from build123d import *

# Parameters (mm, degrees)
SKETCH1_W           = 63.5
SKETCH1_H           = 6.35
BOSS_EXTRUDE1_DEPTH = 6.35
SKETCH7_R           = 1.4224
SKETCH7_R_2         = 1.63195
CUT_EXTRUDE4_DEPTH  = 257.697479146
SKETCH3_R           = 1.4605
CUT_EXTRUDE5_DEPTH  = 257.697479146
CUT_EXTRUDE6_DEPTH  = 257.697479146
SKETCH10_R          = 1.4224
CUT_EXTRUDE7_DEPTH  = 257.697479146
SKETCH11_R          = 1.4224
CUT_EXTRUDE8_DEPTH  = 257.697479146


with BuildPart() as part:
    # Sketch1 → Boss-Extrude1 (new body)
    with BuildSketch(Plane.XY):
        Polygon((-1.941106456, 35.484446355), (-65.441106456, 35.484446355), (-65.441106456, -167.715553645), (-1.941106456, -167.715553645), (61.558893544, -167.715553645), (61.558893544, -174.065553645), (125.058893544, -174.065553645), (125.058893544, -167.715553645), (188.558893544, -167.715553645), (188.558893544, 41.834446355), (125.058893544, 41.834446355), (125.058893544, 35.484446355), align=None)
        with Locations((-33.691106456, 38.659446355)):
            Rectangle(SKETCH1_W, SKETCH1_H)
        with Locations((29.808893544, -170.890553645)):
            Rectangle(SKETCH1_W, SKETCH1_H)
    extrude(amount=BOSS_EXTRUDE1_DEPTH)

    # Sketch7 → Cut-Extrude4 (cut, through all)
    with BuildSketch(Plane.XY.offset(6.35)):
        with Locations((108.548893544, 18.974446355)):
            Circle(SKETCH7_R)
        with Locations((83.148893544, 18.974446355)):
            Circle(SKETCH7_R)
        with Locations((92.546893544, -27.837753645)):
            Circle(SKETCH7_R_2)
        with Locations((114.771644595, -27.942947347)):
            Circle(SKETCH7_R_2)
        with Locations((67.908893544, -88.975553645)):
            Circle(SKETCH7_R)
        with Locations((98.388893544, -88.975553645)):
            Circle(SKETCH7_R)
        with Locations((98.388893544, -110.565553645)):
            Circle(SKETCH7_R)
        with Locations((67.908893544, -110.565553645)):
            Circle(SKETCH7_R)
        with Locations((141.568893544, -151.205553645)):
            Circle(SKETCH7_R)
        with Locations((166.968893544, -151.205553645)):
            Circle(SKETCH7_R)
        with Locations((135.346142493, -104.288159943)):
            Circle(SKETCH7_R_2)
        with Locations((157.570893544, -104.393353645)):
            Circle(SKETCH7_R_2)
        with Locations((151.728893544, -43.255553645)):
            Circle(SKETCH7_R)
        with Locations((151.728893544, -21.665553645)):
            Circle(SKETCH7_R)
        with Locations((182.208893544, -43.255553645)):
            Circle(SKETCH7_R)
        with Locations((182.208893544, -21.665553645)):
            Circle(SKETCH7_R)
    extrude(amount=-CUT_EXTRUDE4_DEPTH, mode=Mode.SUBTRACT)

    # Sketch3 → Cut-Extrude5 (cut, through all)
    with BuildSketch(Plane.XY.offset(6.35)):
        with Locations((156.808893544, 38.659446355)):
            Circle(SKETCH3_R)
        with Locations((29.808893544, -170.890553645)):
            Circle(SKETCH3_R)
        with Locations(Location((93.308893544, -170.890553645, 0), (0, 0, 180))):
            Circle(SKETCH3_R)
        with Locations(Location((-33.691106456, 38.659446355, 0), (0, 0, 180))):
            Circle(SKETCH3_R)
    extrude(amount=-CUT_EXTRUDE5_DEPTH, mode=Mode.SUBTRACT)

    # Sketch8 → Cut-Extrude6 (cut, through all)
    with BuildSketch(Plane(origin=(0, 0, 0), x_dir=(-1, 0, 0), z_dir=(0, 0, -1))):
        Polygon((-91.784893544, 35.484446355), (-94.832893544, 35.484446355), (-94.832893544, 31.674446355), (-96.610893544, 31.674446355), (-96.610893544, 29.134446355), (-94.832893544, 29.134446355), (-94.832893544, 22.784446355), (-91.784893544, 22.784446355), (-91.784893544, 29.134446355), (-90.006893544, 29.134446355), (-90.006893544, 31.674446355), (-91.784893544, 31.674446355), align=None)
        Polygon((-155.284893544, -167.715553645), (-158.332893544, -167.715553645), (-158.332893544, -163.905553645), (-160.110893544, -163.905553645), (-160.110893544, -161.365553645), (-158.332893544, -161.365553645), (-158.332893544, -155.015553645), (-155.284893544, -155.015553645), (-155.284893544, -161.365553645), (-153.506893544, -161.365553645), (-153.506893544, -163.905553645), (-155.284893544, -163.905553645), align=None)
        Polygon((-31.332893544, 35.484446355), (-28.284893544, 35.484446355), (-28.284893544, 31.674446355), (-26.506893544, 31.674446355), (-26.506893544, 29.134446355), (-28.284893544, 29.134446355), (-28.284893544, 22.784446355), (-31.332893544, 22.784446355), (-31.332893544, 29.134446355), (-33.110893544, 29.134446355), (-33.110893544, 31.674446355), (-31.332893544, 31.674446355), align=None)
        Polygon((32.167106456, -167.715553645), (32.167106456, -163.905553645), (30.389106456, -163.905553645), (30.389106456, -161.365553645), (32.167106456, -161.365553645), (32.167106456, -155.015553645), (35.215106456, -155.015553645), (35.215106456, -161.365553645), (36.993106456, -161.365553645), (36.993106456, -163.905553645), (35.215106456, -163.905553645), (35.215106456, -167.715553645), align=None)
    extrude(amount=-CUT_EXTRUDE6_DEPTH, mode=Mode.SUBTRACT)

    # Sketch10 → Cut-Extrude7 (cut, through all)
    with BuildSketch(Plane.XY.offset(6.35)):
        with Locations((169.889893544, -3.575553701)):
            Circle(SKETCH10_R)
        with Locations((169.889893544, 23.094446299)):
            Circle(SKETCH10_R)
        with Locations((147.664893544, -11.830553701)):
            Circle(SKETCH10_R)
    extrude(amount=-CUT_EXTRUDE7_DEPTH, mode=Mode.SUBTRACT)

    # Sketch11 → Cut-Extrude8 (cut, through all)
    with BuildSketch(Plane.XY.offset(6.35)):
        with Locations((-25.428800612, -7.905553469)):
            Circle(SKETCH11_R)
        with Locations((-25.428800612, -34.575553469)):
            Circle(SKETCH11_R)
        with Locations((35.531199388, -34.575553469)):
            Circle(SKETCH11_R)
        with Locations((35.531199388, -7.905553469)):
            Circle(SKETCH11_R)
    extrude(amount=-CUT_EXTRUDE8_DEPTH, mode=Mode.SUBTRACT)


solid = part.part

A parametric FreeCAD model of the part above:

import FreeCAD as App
import Part
import Sketcher
Q = App.Units.Quantity


def add_polygon(sketch, points):
    """Adds a closed chain of lines whose ends are joined by coincident constraints."""
    first, n = sketch.GeometryCount, len(points)
    for a, b in zip(points, points[1:] + points[:1]):
        sketch.addGeometry(Part.LineSegment(App.Vector(*a, 0), App.Vector(*b, 0)), False)
    for i in range(n):
        sketch.addConstraint(Sketcher.Constraint("Coincident", first + i, 2, first + (i + 1) % n, 1))

doc = App.newDocument("Part")
params = doc.addObject("Spreadsheet::Sheet", "Params")
for row, (alias, value) in enumerate([
    ("sketch1_width", "5 in"),
    ("sketch1_width2", "2.5 in"),
    ("sketch1_height", "0.25 in"),
    ("pad1_length", "0.25 in"),
    ("sketch2_diameter", "0.112 in"),
    ("sketch3_diameter", "0.115 in"),
    ("sketch4_height", "0.1 in"),
    ("sketch4_width", "0.12 in"),
    ("sketch4_width2", "0.07 in"),
    ("sketch4_height2", "0.15 in"),
    ("sketch4_height3", "0.25 in"),
    ("sketch5_diameter", "0.112 in"),
    ("sketch6_diameter", "0.112 in"),
], start=1):
    params.set(f"A{row}", alias)
    params.set(f"B{row}", "=" + value)
    params.setAlias(f"B{row}", alias)

body = doc.addObject("PartDesign::Body", "Body")

# Sketch on XY plane
sketch1 = body.newObject("Sketcher::SketchObject", "Sketch")
sketch1.AttachmentSupport = (doc.getObject("XY_Plane"), [""])
sketch1.MapMode = "FlatFace"
add_polygon(sketch1, [(-65, -168), (-2, -168), (-2, -174), (125, -174), (125, -168), (189, -168), (189, 42), (125, 42), (125, 35), (-2, 35), (-2, 42), (-65, 42)])  # lines 0-11
sketch1.addConstraint([
    Sketcher.Constraint("Horizontal", 0),
    Sketcher.Constraint("Vertical", 1),
    Sketcher.Constraint("Horizontal", 2),
    Sketcher.Constraint("Vertical", 3),
    Sketcher.Constraint("Horizontal", 4),
    Sketcher.Constraint("Vertical", 5),
    Sketcher.Constraint("Horizontal", 6),
    Sketcher.Constraint("Vertical", 7),
    Sketcher.Constraint("Horizontal", 8),
    Sketcher.Constraint("Vertical", 9),
    Sketcher.Constraint("Horizontal", 10),
    Sketcher.Constraint("Vertical", 11),
    Sketcher.Constraint("Horizontal", 0, 2, 3, 2),
    Sketcher.Constraint("Horizontal", 6, 2, 9, 2),
    Sketcher.Constraint("Vertical", 3, 2, 6, 2),
    Sketcher.Constraint("Vertical", 1, 2, 8, 2),
    Sketcher.Constraint("Equal", 0, 4),
    Sketcher.Constraint("Equal", 3, 7),
    Sketcher.Constraint("DistanceX", 2, 1, 2, 2, Q("5 in")),
    Sketcher.Constraint("DistanceX", 0, 1, 0, 2, Q("2.5 in")),
    Sketcher.Constraint("DistanceY", 3, 2, 7, 2, Q("8 in")),
    Sketcher.Constraint("DistanceY", 1, 2, 1, 1, Q("0.25 in")),
    Sketcher.Constraint("DistanceX", 0, 2, -1, 1, 1.941106),
    Sketcher.Constraint("DistanceY", 0, 2, -1, 1, 167.715554),
])
sketch1.setExpression("Constraints[30]", "Params.sketch1_width")
sketch1.setExpression("Constraints[31]", "Params.sketch1_width2")
sketch1.setExpression("Constraints[33]", "Params.sketch1_height")
pad1 = body.newObject("PartDesign::Pad", "Pad")
pad1.Profile = sketch1
pad1.setExpression("Length", "Params.pad1_length")

# Sketch on XY plane
sketch2 = body.newObject("Sketcher::SketchObject", "Sketch001")
sketch2.AttachmentSupport = (doc.getObject("XY_Plane"), [""])
sketch2.MapMode = "FlatFace"
sketch2.AttachmentOffset = App.Placement(App.Vector(0, 0, 0.25 * 25.4), App.Rotation())
sketch2.addGeometry([
    Part.Circle(App.Vector(108.5, 19, 0), App.Vector(0, 0, 1), 1.4),  # 0
    Part.Circle(App.Vector(83.1, 19, 0), App.Vector(0, 0, 1), 1.4),  # 1
    Part.Circle(App.Vector(92.5, -27.8, 0), App.Vector(0, 0, 1), 1.6),  # 2
    Part.Circle(App.Vector(114.8, -27.9, 0), App.Vector(0, 0, 1), 1.6),  # 3
    Part.Circle(App.Vector(67.9, -89, 0), App.Vector(0, 0, 1), 1.4),  # 4
    Part.Circle(App.Vector(98.4, -89, 0), App.Vector(0, 0, 1), 1.4),  # 5
    Part.Circle(App.Vector(98.4, -110.6, 0), App.Vector(0, 0, 1), 1.4),  # 6
    Part.Circle(App.Vector(67.9, -110.6, 0), App.Vector(0, 0, 1), 1.4),  # 7
    Part.Circle(App.Vector(141.6, -151.2, 0), App.Vector(0, 0, 1), 1.4),  # 8
    Part.Circle(App.Vector(167, -151.2, 0), App.Vector(0, 0, 1), 1.4),  # 9
    Part.Circle(App.Vector(135.3, -104.3, 0), App.Vector(0, 0, 1), 1.6),  # 10
    Part.Circle(App.Vector(157.6, -104.4, 0), App.Vector(0, 0, 1), 1.6),  # 11
    Part.Circle(App.Vector(151.7, -43.3, 0), App.Vector(0, 0, 1), 1.4),  # 12
    Part.Circle(App.Vector(151.7, -21.7, 0), App.Vector(0, 0, 1), 1.4),  # 13
    Part.Circle(App.Vector(182.2, -43.3, 0), App.Vector(0, 0, 1), 1.4),  # 14
    Part.Circle(App.Vector(182.2, -21.7, 0), App.Vector(0, 0, 1), 1.4),  # 15
], False)
sketch2.addConstraint([
    Sketcher.Constraint("Equal", 0, 1),
    Sketcher.Constraint("Equal", 2, 3),
    Sketcher.Constraint("Equal", 1, 4),
    Sketcher.Constraint("Equal", 4, 5),
    Sketcher.Constraint("Equal", 5, 6),
    Sketcher.Constraint("Equal", 6, 7),
    Sketcher.Constraint("Equal", 7, 8),
    Sketcher.Constraint("Equal", 8, 9),
    Sketcher.Constraint("Equal", 3, 10),
    Sketcher.Constraint("Equal", 10, 11),
    Sketcher.Constraint("Equal", 9, 12),
    Sketcher.Constraint("Equal", 12, 13),
    Sketcher.Constraint("Equal", 13, 14),
    Sketcher.Constraint("Equal", 14, 15),
    Sketcher.Constraint("Horizontal", 0, 3, 1, 3),
    Sketcher.Constraint("Horizontal", 4, 3, 5, 3),
    Sketcher.Constraint("Horizontal", 6, 3, 7, 3),
    Sketcher.Constraint("Horizontal", 8, 3, 9, 3),
    Sketcher.Constraint("Horizontal", 12, 3, 14, 3),
    Sketcher.Constraint("Horizontal", 13, 3, 15, 3),
    Sketcher.Constraint("Vertical", 5, 3, 6, 3),
    Sketcher.Constraint("Vertical", 4, 3, 7, 3),
    Sketcher.Constraint("Vertical", 12, 3, 13, 3),
    Sketcher.Constraint("Vertical", 14, 3, 15, 3),
    Sketcher.Constraint("Diameter", 0, Q("0.112 in")),
    Sketcher.Constraint("DistanceX", 1, 3, 0, 3, Q("1 in")),
    Sketcher.Constraint("DistanceX", 8, 3, 9, 3, Q("1 in")),
    Sketcher.Constraint("Diameter", 2, Q("0.1285 in")),
    Sketcher.Constraint("DistanceX", 4, 3, 1, 3, Q("0.6 in")),
    Sketcher.Constraint("DistanceX", 4, 3, 5, 3, Q("1.2 in")),
    Sketcher.Constraint("DistanceY", 6, 3, 0, 3, Q("5.1 in")),
    Sketcher.Constraint("DistanceX", 6, 3, 8, 3, Q("1.7 in")),
    Sketcher.Constraint("DistanceY", 8, 3, 6, 3, Q("1.6 in")),
    Sketcher.Constraint("DistanceX", 5, 3, 12, 3, Q("2.1 in")),
    Sketcher.Constraint("DistanceY", 5, 3, 12, 3, Q("1.8 in")),
    Sketcher.Constraint("DistanceY", 13, 3, 0, 3, Q("1.6 in")),
    Sketcher.Constraint("DistanceX", 12, 3, 14, 3, Q("1.2 in")),
    Sketcher.Constraint("DistanceX", 1, 3, 2, 3, Q("0.37 in")),
    Sketcher.Constraint("DistanceY", 4, 3, 1, 3, Q("4.25 in")),
    Sketcher.Constraint("DistanceX", 11, 3, 9, 3, Q("0.37 in")),
    Sketcher.Constraint("DistanceY", 2, 3, 1, 3, Q("1.843 in")),
    Sketcher.Constraint("DistanceY", 9, 3, 11, 3, Q("1.843 in")),
    Sketcher.Constraint("DistanceY", 10, 3, -1, 1, 104.28816),
    Sketcher.Constraint("DistanceX", 2, 3, 3, 3, 22.224751),
    Sketcher.Constraint("DistanceX", 6, 3, 10, 3, 36.957249),
    Sketcher.Constraint("DistanceX", -1, 1, 0, 3, 108.548894),
    Sketcher.Constraint("DistanceY", -1, 1, 0, 3, 18.974446),
    Sketcher.Constraint("DistanceY", 3, 3, -1, 1, 27.942947),
])
sketch2.setExpression("Constraints[24]", "Params.sketch2_diameter")
pocket1 = body.newObject("PartDesign::Pocket", "Pocket")
pocket1.Profile = sketch2
pocket1.Type = "ThroughAll"

# Sketch on XY plane
sketch3 = body.newObject("Sketcher::SketchObject", "Sketch002")
sketch3.AttachmentSupport = (doc.getObject("XY_Plane"), [""])
sketch3.MapMode = "FlatFace"
sketch3.AttachmentOffset = App.Placement(App.Vector(0, 0, 0.25 * 25.4), App.Rotation())
sketch3.addGeometry([
    Part.Circle(App.Vector(156.8, 38.7, 0), App.Vector(0, 0, 1), 1.5),
    Part.Circle(App.Vector(29.8, -170.9, 0), App.Vector(0, 0, 1), 1.5),
    Part.Circle(App.Vector(93.3, -170.9, 0), App.Vector(0, 0, 1), 1.5),
    Part.Circle(App.Vector(-33.7, 38.7, 0), App.Vector(0, 0, 1), 1.5),
], False)
sketch3.addConstraint([
    Sketcher.Constraint("Equal", 0, 1),
    Sketcher.Constraint("Equal", 1, 2),
    Sketcher.Constraint("Equal", 2, 3),
    Sketcher.Constraint("Horizontal", 1, 3, 2, 3),
    Sketcher.Constraint("Horizontal", 0, 3, 3, 3),
    Sketcher.Constraint("Diameter", 0, Q("0.115 in")),
    Sketcher.Constraint("DistanceX", 1, 3, 0, 3, Q("5 in")),
    Sketcher.Constraint("DistanceX", 3, 3, 2, 3, Q("5 in")),
    Sketcher.Constraint("DistanceX", 1, 3, 2, 3, Q("2.5 in")),
    Sketcher.Constraint("DistanceY", 1, 3, 0, 3, Q("8.25 in")),
    Sketcher.Constraint("DistanceX", -1, 1, 0, 3, 156.808894),
    Sketcher.Constraint("DistanceY", -1, 1, 0, 3, 38.659446),
])
sketch3.setExpression("Constraints[5]", "Params.sketch3_diameter")
pocket2 = body.newObject("PartDesign::Pocket", "Pocket001")
pocket2.Profile = sketch3
pocket2.Type = "ThroughAll"

# Sketch on XY plane
sketch4 = body.newObject("Sketcher::SketchObject", "Sketch003")
sketch4.AttachmentSupport = (doc.getObject("XY_Plane"), [""])
sketch4.MapMode = "FlatFace"
add_polygon(sketch4, [(91.8, 35.5), (94.8, 35.5), (94.8, 31.7), (96.6, 31.7), (96.6, 29.1), (94.8, 29.1), (94.8, 22.8), (91.8, 22.8), (91.8, 29.1), (90, 29.1), (90, 31.7), (91.8, 31.7)])  # lines 0-11
add_polygon(sketch4, [(158.3, -167.7), (155.3, -167.7), (155.3, -163.9), (153.5, -163.9), (153.5, -161.4), (155.3, -161.4), (155.3, -155), (158.3, -155), (158.3, -161.4), (160.1, -161.4), (160.1, -163.9), (158.3, -163.9)])  # lines 12-23
add_polygon(sketch4, [(28.3, 35.5), (31.3, 35.5), (31.3, 31.7), (33.1, 31.7), (33.1, 29.1), (31.3, 29.1), (31.3, 22.8), (28.3, 22.8), (28.3, 29.1), (26.5, 29.1), (26.5, 31.7), (28.3, 31.7)])  # lines 24-35
add_polygon(sketch4, [(-32.2, -163.9), (-32.2, -167.7), (-35.2, -167.7), (-35.2, -163.9), (-37, -163.9), (-37, -161.4), (-35.2, -161.4), (-35.2, -155), (-32.2, -155), (-32.2, -161.4), (-30.4, -161.4), (-30.4, -163.9)])  # lines 36-47
sketch4.addConstraint([
    Sketcher.Constraint("Horizontal", 0),
    Sketcher.Constraint("Vertical", 1),
    Sketcher.Constraint("Horizontal", 2),
    Sketcher.Constraint("Vertical", 3),
    Sketcher.Constraint("Horizontal", 4),
    Sketcher.Constraint("Vertical", 5),
    Sketcher.Constraint("Horizontal", 6),
    Sketcher.Constraint("Vertical", 7),
    Sketcher.Constraint("Horizontal", 8),
    Sketcher.Constraint("Vertical", 9),
    Sketcher.Constraint("Horizontal", 10),
    Sketcher.Constraint("Vertical", 11),
    Sketcher.Constraint("Horizontal", 12),
    Sketcher.Constraint("Vertical", 13),
    Sketcher.Constraint("Horizontal", 14),
    Sketcher.Constraint("Vertical", 15),
    Sketcher.Constraint("Horizontal", 16),
    Sketcher.Constraint("Vertical", 17),
    Sketcher.Constraint("Horizontal", 18),
    Sketcher.Constraint("Vertical", 19),
    Sketcher.Constraint("Horizontal", 20),
    Sketcher.Constraint("Vertical", 21),
    Sketcher.Constraint("Horizontal", 22),
    Sketcher.Constraint("Vertical", 23),
    Sketcher.Constraint("Horizontal", 24),
    Sketcher.Constraint("Vertical", 25),
    Sketcher.Constraint("Horizontal", 26),
    Sketcher.Constraint("Vertical", 27),
    Sketcher.Constraint("Horizontal", 28),
    Sketcher.Constraint("Vertical", 29),
    Sketcher.Constraint("Horizontal", 30),
    Sketcher.Constraint("Vertical", 31),
    Sketcher.Constraint("Horizontal", 32),
    Sketcher.Constraint("Vertical", 33),
    Sketcher.Constraint("Horizontal", 34),
    Sketcher.Constraint("Vertical", 35),
    Sketcher.Constraint("Vertical", 36),
    Sketcher.Constraint("Horizontal", 37),
    Sketcher.Constraint("Vertical", 38),
    Sketcher.Constraint("Horizontal", 39),
    Sketcher.Constraint("Vertical", 40),
    Sketcher.Constraint("Horizontal", 41),
    Sketcher.Constraint("Vertical", 42),
    Sketcher.Constraint("Horizontal", 43),
    Sketcher.Constraint("Vertical", 44),
    Sketcher.Constraint("Horizontal", 45),
    Sketcher.Constraint("Vertical", 46),
    Sketcher.Constraint("Horizontal", 47),
    Sketcher.Constraint("Horizontal", 4, 2, 7, 2),
    Sketcher.Constraint("Horizontal", 2, 2, 9, 2),
    Sketcher.Constraint("Horizontal", 16, 2, 19, 2),
    Sketcher.Constraint("Horizontal", 14, 2, 21, 2),
    Sketcher.Constraint("Horizontal", 11, 2, 24, 2),
    Sketcher.Constraint("Horizontal", 10, 2, 25, 2),
    Sketcher.Constraint("Horizontal", 8, 2, 27, 2),
    Sketcher.Constraint("Horizontal", 6, 2, 29, 2),
    Sketcher.Constraint("Horizontal", 28, 2, 31, 2),
    Sketcher.Constraint("Horizontal", 26, 2, 33, 2),
    Sketcher.Constraint("Horizontal", 23, 2, 36, 2),
    Sketcher.Constraint("Horizontal", 22, 2, 38, 2),
    Sketcher.Constraint("Horizontal", 20, 2, 40, 2),
    Sketcher.Constraint("Horizontal", 18, 2, 42, 2),
    Sketcher.Constraint("Horizontal", 41, 2, 44, 2),
    Sketcher.Constraint("Horizontal", 39, 2, 46, 2),
    Sketcher.Constraint("Vertical", 1, 2, 4, 2),
    Sketcher.Constraint("Vertical", 7, 2, 10, 2),
    Sketcher.Constraint("Vertical", 13, 2, 16, 2),
    Sketcher.Constraint("Vertical", 19, 2, 22, 2),
    Sketcher.Constraint("Vertical", 25, 2, 28, 2),
    Sketcher.Constraint("Vertical", 31, 2, 34, 2),
    Sketcher.Constraint("Vertical", 38, 2, 41, 2),
    Sketcher.Constraint("Vertical", 36, 2, 43, 2),
    Sketcher.Constraint("Equal", 4, 8),
    Sketcher.Constraint("Equal", 6, 12),
    Sketcher.Constraint("Equal", 10, 14),
    Sketcher.Constraint("Equal", 16, 20),
    Sketcher.Constraint("Equal", 18, 24),
    Sketcher.Constraint("Equal", 22, 26),
    Sketcher.Constraint("Equal", 28, 32),
    Sketcher.Constraint("Equal", 30, 37),
    Sketcher.Constraint("Equal", 34, 39),
    Sketcher.Constraint("Equal", 41, 45),
    Sketcher.Constraint("Equal", 11, 13),
    Sketcher.Constraint("Equal", 9, 15),
    Sketcher.Constraint("Equal", 7, 17),
    Sketcher.Constraint("DistanceY", 3, 2, 3, 1, Q("0.1 in")),
    Sketcher.Constraint("DistanceX", 0, 1, 0, 2, Q("0.12 in")),
    Sketcher.Constraint("DistanceX", 2, 1, 2, 2, Q("0.07 in")),
    Sketcher.Constraint("DistanceY", 1, 2, 1, 1, Q("0.15 in")),
    Sketcher.Constraint("DistanceY", 5, 2, 5, 1, Q("0.25 in")),
    Sketcher.Constraint("DistanceY", 12, 2, 5, 2, Q("7.5 in")),
    Sketcher.Constraint("DistanceX", 6, 2, 12, 2, Q("2.5 in")),
    Sketcher.Constraint("DistanceX", 37, 2, 12, 2, Q("7.5 in")),
    Sketcher.Constraint("DistanceX", 24, 2, 9, 2, Q("2.31 in")),
    Sketcher.Constraint("DistanceX", -1, 1, 0, 2, 94.832894),
    Sketcher.Constraint("DistanceY", -1, 1, 0, 2, 35.484446),
])
sketch4.setExpression("Constraints[133]", "Params.sketch4_height")
sketch4.setExpression("Constraints[134]", "Params.sketch4_width")
sketch4.setExpression("Constraints[135]", "Params.sketch4_width2")
sketch4.setExpression("Constraints[136]", "Params.sketch4_height2")
sketch4.setExpression("Constraints[137]", "Params.sketch4_height3")
pocket3 = body.newObject("PartDesign::Pocket", "Pocket002")
pocket3.Profile = sketch4
pocket3.Type = "ThroughAll"
pocket3.Reversed = True

# Sketch on XY plane
sketch5 = body.newObject("Sketcher::SketchObject", "Sketch004")
sketch5.AttachmentSupport = (doc.getObject("XY_Plane"), [""])
sketch5.MapMode = "FlatFace"
sketch5.AttachmentOffset = App.Placement(App.Vector(0, 0, 0.25 * 25.4), App.Rotation())
sketch5.addGeometry([
    Part.Circle(App.Vector(169.9, -3.6, 0), App.Vector(0, 0, 1), 1.4),
    Part.Circle(App.Vector(169.9, 23.1, 0), App.Vector(0, 0, 1), 1.4),
    Part.Circle(App.Vector(147.7, -11.8, 0), App.Vector(0, 0, 1), 1.4),
], False)
sketch5.addConstraint([
    Sketcher.Constraint("Equal", 0, 1),
    Sketcher.Constraint("Equal", 1, 2),
    Sketcher.Constraint("Vertical", 0, 3, 1, 3),
    Sketcher.Constraint("Diameter", 0, Q("0.112 in")),
    Sketcher.Constraint("DistanceY", 0, 3, 1, 3, Q("1.05 in")),
    Sketcher.Constraint("DistanceX", 2, 3, 0, 3, Q("0.875 in")),
    Sketcher.Constraint("DistanceY", 2, 3, 0, 3, Q("0.325 in")),
    Sketcher.Constraint("DistanceX", -1, 1, 0, 3, 169.889894),
    Sketcher.Constraint("DistanceY", 0, 3, -1, 1, 3.575554),
])
sketch5.setExpression("Constraints[3]", "Params.sketch5_diameter")
pocket4 = body.newObject("PartDesign::Pocket", "Pocket003")
pocket4.Profile = sketch5
pocket4.Type = "ThroughAll"

# Sketch on XY plane
sketch6 = body.newObject("Sketcher::SketchObject", "Sketch005")
sketch6.AttachmentSupport = (doc.getObject("XY_Plane"), [""])
sketch6.MapMode = "FlatFace"
sketch6.AttachmentOffset = App.Placement(App.Vector(0, 0, 0.25 * 25.4), App.Rotation())
sketch6.addGeometry([
    Part.Circle(App.Vector(-25.4, -7.9, 0), App.Vector(0, 0, 1), 1.4),
    Part.Circle(App.Vector(-25.4, -34.6, 0), App.Vector(0, 0, 1), 1.4),
    Part.Circle(App.Vector(35.5, -34.6, 0), App.Vector(0, 0, 1), 1.4),
    Part.Circle(App.Vector(35.5, -7.9, 0), App.Vector(0, 0, 1), 1.4),
], False)
sketch6.addConstraint([
    Sketcher.Constraint("Equal", 0, 1),
    Sketcher.Constraint("Equal", 1, 2),
    Sketcher.Constraint("Equal", 2, 3),
    Sketcher.Constraint("Horizontal", 1, 3, 2, 3),
    Sketcher.Constraint("Horizontal", 0, 3, 3, 3),
    Sketcher.Constraint("Vertical", 0, 3, 1, 3),
    Sketcher.Constraint("Vertical", 2, 3, 3, 3),
    Sketcher.Constraint("Diameter", 0, Q("0.112 in")),
    Sketcher.Constraint("DistanceX", 1, 3, 2, 3, Q("2.4 in")),
    Sketcher.Constraint("DistanceY", 1, 3, 0, 3, Q("1.05 in")),
    Sketcher.Constraint("DistanceX", 0, 3, -1, 1, 25.428801),
    Sketcher.Constraint("DistanceY", 0, 3, -1, 1, 7.905553),
])
sketch6.setExpression("Constraints[7]", "Params.sketch6_diameter")
pocket5 = body.newObject("PartDesign::Pocket", "Pocket004")
pocket5.Profile = sketch6
pocket5.Type = "ThroughAll"

doc.recompute()
